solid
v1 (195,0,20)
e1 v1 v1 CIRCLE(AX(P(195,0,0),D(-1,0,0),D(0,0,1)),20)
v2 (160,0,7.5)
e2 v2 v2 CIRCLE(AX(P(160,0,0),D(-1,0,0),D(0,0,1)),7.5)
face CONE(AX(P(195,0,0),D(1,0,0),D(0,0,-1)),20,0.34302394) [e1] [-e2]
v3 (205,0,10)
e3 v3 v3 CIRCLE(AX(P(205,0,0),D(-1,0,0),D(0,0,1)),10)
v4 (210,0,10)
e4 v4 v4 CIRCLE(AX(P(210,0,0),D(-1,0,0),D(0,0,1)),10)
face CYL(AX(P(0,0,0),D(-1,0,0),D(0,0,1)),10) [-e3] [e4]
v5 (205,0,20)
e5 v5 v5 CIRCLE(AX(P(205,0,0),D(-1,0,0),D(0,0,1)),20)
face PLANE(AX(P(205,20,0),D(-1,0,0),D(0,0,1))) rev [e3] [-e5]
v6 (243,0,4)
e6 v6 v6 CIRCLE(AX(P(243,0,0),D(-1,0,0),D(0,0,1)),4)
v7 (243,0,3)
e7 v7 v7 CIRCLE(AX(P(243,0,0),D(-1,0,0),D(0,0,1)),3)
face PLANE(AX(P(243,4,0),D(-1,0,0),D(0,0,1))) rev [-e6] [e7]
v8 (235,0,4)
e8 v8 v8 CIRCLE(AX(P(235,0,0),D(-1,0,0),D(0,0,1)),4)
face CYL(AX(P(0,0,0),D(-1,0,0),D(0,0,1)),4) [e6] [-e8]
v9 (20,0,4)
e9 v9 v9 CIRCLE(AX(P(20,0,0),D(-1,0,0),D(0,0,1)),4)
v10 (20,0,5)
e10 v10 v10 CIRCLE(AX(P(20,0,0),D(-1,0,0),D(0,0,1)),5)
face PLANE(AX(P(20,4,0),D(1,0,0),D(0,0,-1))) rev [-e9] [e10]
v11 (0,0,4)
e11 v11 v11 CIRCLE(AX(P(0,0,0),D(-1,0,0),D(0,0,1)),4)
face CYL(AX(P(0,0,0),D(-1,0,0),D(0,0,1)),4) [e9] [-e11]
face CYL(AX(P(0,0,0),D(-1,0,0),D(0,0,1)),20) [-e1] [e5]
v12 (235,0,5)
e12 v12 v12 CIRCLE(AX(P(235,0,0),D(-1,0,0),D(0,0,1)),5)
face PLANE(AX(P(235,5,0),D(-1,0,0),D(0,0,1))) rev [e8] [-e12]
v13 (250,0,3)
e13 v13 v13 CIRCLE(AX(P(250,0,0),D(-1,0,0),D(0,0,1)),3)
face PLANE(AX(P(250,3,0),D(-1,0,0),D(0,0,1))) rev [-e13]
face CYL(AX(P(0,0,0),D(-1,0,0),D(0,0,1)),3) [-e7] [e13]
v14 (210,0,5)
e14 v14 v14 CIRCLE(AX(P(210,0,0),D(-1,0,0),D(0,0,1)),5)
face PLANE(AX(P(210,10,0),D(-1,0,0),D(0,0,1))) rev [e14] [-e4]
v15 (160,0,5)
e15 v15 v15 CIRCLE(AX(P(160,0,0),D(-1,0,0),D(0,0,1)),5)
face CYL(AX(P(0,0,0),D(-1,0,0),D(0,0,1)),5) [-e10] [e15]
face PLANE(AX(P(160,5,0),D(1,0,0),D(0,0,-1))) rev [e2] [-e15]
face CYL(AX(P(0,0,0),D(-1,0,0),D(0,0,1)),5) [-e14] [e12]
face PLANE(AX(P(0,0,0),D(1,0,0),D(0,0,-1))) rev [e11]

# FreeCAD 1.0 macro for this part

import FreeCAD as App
import Part
import Sketcher

V = App.Vector
Q = App.Units.Quantity

doc = App.newDocument("Part")
params = doc.addObject("Spreadsheet::Sheet", "Params")
for row, (alias, value) in enumerate([
    ("sketch1_width", "250 mm"),
    ("sketch1_width2", "7 mm"),
    ("sketch1_width3", "8 mm"),
    ("sketch1_width4", "25 mm"),
    ("sketch1_width5", "5 mm"),
    ("revolution_angle", "360 deg"),
], start=1):
    params.set(f"A{row}", alias)
    params.set(f"B{row}", "=" + value)
    params.setAlias(f"B{row}", alias)

body = doc.addObject("PartDesign::Body", "Body")

sketch1 = body.newObject("Sketcher::SketchObject", "Sketch")
sketch1.AttachmentSupport = (doc.getObject("XY_Plane"), [""])
sketch1.MapMode = "FlatFace"
sketch1.addGeometry([
    Part.LineSegment(V(0, 4, 0), V(0, 0, 0)),
    Part.LineSegment(V(0, 0, 0), V(250, 0, 0)),
    Part.LineSegment(V(250, 0, 0), V(250, 3, 0)),
    Part.LineSegment(V(250, 3, 0), V(243, 3, 0)),
    Part.LineSegment(V(243, 3, 0), V(243, 4, 0)),
    Part.LineSegment(V(243, 4, 0), V(235, 4, 0)),
    Part.LineSegment(V(235, 4, 0), V(235, 5, 0)),
    Part.LineSegment(V(235, 5, 0), V(210, 5, 0)),
    Part.LineSegment(V(210, 5, 0), V(210, 10, 0)),
    Part.LineSegment(V(210, 10, 0), V(205, 10, 0)),
    Part.LineSegment(V(205, 10, 0), V(205, 20, 0)),
    Part.LineSegment(V(205, 20, 0), V(195, 20, 0)),
    Part.LineSegment(V(195, 20, 0), V(160, 7.5, 0)),
    Part.LineSegment(V(160, 7.5, 0), V(160, 5, 0)),
    Part.LineSegment(V(160, 5, 0), V(20, 5, 0)),
    Part.LineSegment(V(20, 5, 0), V(20, 4, 0)),
    Part.LineSegment(V(20, 4, 0), V(0, 4, 0)),
], False)
sketch1.addConstraint([
    Sketcher.Constraint("Coincident", 0, 2, 1, 1),
    Sketcher.Constraint("Coincident", 1, 2, 2, 1),
    Sketcher.Constraint("Coincident", 2, 2, 3, 1),
    Sketcher.Constraint("Coincident", 3, 2, 4, 1),
    Sketcher.Constraint("Coincident", 4, 2, 5, 1),
    Sketcher.Constraint("Coincident", 5, 2, 6, 1),
    Sketcher.Constraint("Coincident", 6, 2, 7, 1),
    Sketcher.Constraint("Coincident", 7, 2, 8, 1),
    Sketcher.Constraint("Coincident", 8, 2, 9, 1),
    Sketcher.Constraint("Coincident", 9, 2, 10, 1),
    Sketcher.Constraint("Coincident", 10, 2, 11, 1),
    Sketcher.Constraint("Coincident", 11, 2, 12, 1),
    Sketcher.Constraint("Coincident", 12, 2, 13, 1),
    Sketcher.Constraint("Coincident", 13, 2, 14, 1),
    Sketcher.Constraint("Coincident", 14, 2, 15, 1),
    Sketcher.Constraint("Coincident", 15, 2, 16, 1),
    Sketcher.Constraint("Coincident", 16, 2, 0, 1),
    Sketcher.Constraint("Vertical", 0),
    Sketcher.Constraint("Horizontal", 1),
    Sketcher.Constraint("Vertical", 2),
    Sketcher.Constraint("Horizontal", 3),
    Sketcher.Constraint("Vertical", 4),
    Sketcher.Constraint("Horizontal", 5),
    Sketcher.Constraint("Vertical", 6),
    Sketcher.Constraint("Horizontal", 7),
    Sketcher.Constraint("Vertical", 8),
    Sketcher.Constraint("Horizontal", 9),
    Sketcher.Constraint("Vertical", 10),
    Sketcher.Constraint("Horizontal", 11),
    Sketcher.Constraint("Vertical", 13),
    Sketcher.Constraint("Horizontal", 14),
    Sketcher.Constraint("Vertical", 15),
    Sketcher.Constraint("Horizontal", 16),
    Sketcher.Constraint("Coincident", 0, 2, -1, 1),
    Sketcher.Constraint("Horizontal", 7, 2, 13, 2),
    Sketcher.Constraint("Horizontal", 5, 2, 15, 2),
    Sketcher.Constraint("Equal", 4, 6),
    Sketcher.Constraint("Equal", 9, 8),
    Sketcher.Constraint("Equal", 11, 10),
    Sketcher.Constraint("DistanceX", 1, 1, 1, 2, Q("250 mm")),
    Sketcher.Constraint("DistanceX", 3, 2, 3, 1, Q("7 mm")),
    Sketcher.Constraint("DistanceX", 5, 2, 5, 1, Q("8 mm")),
    Sketcher.Constraint("DistanceX", 7, 2, 7, 1, Q("25 mm")),
    Sketcher.Constraint("DistanceX", 9, 2, 9, 1, Q("5 mm")),
    Sketcher.Constraint("DistanceX", 11, 2, 11, 1, Q("10 mm")),
    Sketcher.Constraint("DistanceX", 14, 2, 14, 1, Q("140 mm")),
    Sketcher.Constraint("DistanceX", 16, 2, 16, 1, Q("20 mm")),
    Sketcher.Constraint("DistanceY", 0, 2, 0, 1, Q("4 mm")),
    Sketcher.Constraint("DistanceY", 2, 1, 2, 2, Q("3 mm")),
    Sketcher.Constraint("DistanceY", 13, 2, 13, 1, Q("2.5 mm")),
])
sketch1.setExpression("Constraints[39]", "Params.sketch1_width")
sketch1.setExpression("Constraints[40]", "Params.sketch1_width2")
sketch1.setExpression("Constraints[41]", "Params.sketch1_width3")
sketch1.setExpression("Constraints[42]", "Params.sketch1_width4")
sketch1.setExpression("Constraints[43]", "Params.sketch1_width5")
revolution = body.newObject("PartDesign::Revolution", "Revolution")
revolution.Profile = sketch1
revolution.ReferenceAxis = (sketch1, ["H_Axis"])
revolution.setExpression("Angle", "Params.revolution_angle")

doc.recompute()
